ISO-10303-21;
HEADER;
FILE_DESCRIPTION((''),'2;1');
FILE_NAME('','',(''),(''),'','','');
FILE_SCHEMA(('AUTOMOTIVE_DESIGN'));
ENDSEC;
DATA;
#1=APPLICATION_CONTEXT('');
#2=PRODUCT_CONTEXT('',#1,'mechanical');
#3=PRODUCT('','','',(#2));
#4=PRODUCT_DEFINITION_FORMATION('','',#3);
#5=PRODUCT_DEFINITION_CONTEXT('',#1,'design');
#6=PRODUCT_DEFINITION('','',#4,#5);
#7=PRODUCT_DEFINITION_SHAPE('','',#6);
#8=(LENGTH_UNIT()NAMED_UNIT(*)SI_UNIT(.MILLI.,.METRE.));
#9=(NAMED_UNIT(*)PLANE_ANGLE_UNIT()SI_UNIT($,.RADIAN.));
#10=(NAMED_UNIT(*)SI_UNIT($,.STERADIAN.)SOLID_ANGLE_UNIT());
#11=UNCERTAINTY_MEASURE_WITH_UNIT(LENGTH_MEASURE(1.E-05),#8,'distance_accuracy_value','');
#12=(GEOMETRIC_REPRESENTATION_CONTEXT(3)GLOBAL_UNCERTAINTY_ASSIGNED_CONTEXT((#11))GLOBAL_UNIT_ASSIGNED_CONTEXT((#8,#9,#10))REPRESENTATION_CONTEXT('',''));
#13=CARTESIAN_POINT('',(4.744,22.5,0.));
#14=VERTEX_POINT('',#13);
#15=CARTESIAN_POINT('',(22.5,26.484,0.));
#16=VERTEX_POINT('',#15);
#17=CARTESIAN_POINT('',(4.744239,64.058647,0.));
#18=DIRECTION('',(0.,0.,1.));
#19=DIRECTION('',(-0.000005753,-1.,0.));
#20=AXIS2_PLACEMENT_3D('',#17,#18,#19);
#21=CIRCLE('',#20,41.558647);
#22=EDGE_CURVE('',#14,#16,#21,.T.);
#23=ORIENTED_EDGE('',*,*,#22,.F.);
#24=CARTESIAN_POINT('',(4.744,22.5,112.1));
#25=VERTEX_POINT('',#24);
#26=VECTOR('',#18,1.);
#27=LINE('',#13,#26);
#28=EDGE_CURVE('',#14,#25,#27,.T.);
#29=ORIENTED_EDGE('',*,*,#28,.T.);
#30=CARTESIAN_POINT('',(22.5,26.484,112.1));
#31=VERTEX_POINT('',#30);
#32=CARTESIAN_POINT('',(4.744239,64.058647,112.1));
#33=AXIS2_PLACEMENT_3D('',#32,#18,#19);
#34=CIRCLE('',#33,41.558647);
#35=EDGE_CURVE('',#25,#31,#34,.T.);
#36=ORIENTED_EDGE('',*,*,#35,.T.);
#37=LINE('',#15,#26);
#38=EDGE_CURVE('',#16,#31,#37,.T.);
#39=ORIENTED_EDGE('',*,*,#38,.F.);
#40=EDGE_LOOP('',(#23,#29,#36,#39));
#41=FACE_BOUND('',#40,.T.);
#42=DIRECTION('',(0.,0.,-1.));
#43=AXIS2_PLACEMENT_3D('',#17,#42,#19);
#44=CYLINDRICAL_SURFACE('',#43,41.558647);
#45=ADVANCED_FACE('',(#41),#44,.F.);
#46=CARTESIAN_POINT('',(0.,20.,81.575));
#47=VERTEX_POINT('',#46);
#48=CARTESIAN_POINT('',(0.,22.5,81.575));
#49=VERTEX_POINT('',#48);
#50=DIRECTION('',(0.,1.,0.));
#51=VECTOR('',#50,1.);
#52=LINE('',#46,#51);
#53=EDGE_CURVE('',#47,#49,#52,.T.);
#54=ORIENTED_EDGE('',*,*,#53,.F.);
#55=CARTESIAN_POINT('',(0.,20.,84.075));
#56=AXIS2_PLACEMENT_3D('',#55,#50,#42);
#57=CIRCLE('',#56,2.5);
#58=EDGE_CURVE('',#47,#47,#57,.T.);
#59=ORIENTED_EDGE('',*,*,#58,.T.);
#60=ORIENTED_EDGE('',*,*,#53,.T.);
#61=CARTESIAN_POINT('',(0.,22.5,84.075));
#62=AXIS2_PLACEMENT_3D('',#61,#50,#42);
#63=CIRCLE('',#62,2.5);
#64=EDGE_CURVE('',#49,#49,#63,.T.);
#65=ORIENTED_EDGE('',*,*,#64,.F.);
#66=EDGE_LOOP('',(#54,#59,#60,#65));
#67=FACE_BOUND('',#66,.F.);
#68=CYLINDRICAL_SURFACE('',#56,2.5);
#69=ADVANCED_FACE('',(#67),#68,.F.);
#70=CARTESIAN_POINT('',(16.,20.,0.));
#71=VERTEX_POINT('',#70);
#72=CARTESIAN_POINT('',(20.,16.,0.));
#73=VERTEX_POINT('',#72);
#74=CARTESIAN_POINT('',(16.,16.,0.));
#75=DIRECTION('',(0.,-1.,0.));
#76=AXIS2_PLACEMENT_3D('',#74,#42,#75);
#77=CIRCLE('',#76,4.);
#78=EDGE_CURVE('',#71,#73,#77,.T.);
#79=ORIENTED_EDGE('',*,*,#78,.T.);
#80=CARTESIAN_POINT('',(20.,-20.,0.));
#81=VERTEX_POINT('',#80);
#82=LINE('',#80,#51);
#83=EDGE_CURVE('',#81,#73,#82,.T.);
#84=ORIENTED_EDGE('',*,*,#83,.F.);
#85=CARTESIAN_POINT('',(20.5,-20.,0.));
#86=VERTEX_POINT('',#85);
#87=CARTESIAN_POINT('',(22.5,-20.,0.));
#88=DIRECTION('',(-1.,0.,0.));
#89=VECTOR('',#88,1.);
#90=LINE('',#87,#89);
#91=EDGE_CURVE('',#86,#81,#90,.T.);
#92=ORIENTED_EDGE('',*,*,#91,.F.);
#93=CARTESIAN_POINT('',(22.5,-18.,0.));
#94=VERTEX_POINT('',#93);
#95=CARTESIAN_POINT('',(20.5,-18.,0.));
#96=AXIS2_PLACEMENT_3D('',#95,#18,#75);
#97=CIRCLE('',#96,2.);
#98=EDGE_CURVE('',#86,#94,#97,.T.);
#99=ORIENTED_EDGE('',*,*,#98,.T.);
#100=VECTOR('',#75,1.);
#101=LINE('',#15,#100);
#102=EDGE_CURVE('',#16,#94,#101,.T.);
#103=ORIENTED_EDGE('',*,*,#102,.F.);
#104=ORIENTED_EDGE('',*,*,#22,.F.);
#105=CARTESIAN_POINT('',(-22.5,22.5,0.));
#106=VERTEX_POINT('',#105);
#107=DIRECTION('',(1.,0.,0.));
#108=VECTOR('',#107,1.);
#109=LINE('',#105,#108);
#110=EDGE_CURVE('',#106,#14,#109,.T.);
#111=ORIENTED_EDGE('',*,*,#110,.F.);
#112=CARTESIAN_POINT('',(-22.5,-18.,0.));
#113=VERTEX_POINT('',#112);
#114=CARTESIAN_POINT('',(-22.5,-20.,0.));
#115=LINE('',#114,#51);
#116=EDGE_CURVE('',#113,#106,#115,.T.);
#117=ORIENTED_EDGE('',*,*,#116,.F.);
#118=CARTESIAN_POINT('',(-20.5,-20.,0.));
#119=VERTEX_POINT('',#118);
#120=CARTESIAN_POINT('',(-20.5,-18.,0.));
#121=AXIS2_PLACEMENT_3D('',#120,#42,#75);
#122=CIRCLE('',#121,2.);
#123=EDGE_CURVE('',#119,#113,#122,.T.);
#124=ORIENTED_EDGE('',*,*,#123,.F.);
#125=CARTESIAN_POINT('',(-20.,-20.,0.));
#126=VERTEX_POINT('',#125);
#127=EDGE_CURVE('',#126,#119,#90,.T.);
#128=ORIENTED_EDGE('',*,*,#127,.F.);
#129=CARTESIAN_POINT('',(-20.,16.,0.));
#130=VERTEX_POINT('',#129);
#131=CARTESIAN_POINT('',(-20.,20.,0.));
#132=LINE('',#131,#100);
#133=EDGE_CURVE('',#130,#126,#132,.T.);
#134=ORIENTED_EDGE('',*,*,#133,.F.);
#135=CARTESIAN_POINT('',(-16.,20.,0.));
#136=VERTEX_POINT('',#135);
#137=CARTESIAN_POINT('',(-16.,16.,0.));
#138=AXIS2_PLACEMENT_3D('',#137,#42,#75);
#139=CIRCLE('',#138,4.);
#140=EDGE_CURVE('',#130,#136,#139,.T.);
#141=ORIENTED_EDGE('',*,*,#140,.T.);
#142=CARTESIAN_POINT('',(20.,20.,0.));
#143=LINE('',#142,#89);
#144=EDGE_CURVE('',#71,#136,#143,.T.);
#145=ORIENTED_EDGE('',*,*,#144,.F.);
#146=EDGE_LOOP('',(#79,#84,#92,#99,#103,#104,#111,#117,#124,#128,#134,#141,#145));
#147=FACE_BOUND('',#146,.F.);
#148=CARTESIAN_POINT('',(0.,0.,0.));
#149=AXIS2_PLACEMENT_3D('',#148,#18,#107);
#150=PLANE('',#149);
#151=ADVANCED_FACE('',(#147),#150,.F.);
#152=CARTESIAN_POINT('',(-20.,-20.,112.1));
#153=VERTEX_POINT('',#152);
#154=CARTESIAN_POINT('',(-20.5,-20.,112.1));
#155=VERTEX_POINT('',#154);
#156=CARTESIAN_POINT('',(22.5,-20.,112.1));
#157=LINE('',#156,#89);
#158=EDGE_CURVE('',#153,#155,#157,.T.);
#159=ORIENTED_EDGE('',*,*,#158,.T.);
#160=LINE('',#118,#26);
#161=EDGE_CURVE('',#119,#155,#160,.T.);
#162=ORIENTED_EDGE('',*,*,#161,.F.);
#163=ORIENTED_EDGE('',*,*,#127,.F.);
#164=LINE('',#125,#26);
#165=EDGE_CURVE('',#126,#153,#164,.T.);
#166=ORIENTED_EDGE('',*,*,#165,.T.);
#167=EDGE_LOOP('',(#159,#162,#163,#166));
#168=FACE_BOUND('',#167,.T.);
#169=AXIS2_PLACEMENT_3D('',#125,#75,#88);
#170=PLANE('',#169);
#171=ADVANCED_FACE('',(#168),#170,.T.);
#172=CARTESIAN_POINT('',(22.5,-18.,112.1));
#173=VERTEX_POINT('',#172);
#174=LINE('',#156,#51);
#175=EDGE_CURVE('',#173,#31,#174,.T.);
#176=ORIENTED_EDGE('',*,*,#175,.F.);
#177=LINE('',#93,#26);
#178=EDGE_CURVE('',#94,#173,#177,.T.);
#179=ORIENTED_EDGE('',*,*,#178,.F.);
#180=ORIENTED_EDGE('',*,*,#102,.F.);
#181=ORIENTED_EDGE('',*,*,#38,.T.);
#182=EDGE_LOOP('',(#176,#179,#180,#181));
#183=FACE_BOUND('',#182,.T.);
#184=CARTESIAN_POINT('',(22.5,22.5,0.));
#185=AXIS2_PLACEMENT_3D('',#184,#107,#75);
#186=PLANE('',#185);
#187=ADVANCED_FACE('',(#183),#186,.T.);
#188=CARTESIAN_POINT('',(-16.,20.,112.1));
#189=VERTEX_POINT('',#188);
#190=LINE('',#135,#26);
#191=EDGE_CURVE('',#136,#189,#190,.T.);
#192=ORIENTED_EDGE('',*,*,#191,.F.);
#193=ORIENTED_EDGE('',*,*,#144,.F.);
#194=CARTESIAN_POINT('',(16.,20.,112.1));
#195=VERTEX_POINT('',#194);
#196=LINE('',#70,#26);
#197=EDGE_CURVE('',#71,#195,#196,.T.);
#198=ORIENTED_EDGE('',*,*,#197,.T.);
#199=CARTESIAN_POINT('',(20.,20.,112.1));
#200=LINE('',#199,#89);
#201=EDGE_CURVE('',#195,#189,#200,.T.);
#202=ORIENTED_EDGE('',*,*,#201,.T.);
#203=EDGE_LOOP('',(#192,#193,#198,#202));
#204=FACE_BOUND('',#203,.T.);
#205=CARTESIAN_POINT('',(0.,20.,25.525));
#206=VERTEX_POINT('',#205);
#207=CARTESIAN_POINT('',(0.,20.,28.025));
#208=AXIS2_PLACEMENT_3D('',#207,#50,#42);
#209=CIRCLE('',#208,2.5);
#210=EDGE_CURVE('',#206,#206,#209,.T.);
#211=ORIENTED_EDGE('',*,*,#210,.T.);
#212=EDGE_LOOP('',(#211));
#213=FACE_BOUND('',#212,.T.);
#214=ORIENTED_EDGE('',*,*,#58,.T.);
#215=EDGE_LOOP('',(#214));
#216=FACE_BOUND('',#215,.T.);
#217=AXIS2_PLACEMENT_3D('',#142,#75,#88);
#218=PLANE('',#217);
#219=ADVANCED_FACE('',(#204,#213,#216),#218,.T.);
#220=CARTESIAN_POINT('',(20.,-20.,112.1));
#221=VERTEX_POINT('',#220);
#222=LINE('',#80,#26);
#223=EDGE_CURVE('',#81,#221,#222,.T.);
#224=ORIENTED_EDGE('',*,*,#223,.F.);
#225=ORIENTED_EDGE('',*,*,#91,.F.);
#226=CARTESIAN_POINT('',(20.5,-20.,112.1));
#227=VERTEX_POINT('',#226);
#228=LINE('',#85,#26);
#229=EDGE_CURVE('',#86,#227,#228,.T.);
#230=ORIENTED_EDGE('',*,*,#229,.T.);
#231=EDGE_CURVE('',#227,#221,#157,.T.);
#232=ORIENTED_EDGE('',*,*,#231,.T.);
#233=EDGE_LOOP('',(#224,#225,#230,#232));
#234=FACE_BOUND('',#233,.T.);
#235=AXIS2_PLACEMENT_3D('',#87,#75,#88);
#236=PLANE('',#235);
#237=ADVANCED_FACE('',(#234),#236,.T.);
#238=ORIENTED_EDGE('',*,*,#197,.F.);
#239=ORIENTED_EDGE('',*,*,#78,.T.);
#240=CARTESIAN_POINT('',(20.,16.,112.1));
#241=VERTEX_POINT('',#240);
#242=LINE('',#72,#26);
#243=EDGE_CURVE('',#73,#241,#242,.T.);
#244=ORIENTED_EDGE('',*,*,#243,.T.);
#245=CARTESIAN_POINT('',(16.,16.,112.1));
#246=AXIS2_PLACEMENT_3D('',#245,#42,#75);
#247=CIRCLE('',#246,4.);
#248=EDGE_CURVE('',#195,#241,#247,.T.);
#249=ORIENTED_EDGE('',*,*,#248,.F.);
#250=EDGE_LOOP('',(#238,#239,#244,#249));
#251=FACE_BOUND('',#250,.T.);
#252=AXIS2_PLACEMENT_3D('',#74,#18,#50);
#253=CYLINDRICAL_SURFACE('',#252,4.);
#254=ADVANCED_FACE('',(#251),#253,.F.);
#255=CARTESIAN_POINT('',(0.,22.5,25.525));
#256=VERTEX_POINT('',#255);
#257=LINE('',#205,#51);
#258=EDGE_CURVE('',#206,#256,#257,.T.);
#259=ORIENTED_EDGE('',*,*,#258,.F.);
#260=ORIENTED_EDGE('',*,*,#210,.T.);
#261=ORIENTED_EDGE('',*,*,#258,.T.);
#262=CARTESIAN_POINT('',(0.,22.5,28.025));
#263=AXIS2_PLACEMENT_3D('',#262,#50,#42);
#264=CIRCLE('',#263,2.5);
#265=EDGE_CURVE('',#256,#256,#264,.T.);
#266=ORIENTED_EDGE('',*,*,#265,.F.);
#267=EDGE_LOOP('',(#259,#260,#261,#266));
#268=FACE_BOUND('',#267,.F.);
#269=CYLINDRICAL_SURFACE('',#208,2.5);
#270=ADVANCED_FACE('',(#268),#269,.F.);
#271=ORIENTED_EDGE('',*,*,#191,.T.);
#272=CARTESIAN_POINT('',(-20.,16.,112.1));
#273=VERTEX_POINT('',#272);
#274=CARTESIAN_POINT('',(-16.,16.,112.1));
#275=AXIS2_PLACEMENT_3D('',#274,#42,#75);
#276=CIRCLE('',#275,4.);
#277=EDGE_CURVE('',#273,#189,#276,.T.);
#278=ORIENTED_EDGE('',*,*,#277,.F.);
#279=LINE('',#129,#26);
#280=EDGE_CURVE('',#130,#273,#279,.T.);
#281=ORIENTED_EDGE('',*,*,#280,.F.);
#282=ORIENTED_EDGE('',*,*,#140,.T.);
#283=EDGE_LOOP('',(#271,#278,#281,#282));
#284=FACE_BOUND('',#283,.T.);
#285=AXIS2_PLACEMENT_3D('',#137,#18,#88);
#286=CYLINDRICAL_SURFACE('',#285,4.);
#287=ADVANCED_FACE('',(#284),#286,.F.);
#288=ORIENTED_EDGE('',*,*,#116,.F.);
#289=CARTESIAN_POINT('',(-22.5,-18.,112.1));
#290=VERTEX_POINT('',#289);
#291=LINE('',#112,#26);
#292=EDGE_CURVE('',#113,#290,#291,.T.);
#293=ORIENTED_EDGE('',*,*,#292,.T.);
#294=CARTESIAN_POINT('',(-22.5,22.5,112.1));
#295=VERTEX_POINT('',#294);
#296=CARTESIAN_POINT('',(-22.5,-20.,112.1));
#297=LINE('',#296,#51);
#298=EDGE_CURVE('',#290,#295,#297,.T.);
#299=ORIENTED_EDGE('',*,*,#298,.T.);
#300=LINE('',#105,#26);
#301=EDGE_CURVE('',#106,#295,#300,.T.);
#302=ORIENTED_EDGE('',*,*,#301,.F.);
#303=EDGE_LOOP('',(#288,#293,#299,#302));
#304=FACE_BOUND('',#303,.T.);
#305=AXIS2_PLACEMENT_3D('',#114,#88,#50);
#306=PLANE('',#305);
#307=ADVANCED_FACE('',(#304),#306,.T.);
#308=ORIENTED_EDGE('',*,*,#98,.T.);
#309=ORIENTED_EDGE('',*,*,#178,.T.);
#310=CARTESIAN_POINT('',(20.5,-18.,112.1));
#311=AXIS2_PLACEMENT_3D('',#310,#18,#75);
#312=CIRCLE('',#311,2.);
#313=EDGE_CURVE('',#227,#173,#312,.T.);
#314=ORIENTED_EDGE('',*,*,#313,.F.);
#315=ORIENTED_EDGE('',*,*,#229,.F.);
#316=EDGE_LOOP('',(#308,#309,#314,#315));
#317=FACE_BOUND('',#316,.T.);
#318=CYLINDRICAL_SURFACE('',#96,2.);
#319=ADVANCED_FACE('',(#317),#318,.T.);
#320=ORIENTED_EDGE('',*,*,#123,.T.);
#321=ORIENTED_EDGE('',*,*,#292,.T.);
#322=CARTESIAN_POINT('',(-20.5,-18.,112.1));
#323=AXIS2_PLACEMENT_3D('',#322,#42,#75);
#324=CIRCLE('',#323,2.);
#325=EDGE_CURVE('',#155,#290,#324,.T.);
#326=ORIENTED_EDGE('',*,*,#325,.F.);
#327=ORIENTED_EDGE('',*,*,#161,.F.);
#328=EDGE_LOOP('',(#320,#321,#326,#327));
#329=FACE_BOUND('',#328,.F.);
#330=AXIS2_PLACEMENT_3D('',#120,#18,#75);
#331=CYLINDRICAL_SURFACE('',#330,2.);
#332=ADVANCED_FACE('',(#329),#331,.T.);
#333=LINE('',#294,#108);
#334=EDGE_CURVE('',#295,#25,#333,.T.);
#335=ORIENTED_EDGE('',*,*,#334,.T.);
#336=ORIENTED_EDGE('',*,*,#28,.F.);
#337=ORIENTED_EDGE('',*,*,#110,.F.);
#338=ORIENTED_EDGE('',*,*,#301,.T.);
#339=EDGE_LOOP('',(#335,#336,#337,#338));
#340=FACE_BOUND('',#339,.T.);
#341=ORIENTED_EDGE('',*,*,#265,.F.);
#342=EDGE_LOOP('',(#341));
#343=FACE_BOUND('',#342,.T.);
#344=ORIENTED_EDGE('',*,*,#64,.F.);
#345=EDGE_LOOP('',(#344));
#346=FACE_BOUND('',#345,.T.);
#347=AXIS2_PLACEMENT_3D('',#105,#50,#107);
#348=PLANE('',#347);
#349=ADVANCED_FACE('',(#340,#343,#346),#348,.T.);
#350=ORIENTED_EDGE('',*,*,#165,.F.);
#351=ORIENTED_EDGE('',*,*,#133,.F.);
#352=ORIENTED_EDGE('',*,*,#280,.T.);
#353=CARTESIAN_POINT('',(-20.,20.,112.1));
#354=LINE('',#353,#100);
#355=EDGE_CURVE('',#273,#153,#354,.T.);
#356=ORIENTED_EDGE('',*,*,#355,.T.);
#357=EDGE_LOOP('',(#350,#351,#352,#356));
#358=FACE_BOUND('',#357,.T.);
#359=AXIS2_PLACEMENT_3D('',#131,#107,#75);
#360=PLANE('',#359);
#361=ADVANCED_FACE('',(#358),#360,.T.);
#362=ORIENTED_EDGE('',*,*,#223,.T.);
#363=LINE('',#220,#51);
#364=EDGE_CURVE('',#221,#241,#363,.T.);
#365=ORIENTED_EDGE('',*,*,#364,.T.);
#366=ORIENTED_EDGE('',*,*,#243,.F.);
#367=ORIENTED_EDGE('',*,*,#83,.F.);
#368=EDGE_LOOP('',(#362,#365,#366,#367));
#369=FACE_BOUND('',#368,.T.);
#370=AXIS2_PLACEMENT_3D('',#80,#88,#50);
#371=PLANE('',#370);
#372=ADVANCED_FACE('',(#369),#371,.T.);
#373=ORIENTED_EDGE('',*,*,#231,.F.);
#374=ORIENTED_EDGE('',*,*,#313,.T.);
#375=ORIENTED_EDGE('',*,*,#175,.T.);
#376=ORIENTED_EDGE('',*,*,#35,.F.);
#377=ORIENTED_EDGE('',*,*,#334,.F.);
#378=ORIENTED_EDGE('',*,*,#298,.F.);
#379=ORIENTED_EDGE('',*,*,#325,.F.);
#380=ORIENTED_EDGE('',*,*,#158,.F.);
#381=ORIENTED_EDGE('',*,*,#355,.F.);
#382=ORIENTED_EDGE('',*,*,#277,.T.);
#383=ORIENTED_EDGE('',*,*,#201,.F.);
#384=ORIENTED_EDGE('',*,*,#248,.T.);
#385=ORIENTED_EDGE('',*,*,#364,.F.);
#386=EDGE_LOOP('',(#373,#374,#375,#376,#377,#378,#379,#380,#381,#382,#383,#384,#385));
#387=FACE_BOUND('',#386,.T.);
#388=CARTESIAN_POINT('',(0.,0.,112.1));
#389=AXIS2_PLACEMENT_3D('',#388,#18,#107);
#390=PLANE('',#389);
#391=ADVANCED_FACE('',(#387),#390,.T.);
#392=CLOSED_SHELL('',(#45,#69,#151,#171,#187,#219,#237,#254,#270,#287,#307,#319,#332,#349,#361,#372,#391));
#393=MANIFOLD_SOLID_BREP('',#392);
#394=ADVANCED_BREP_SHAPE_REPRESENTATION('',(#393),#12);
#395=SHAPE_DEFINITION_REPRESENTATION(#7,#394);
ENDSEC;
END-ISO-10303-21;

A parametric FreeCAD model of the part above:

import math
import FreeCAD as App
import Part
import Sketcher
from FreeCAD import Vector
Q = App.Units.Quantity


def edges_at(feature, points):
    """Names of the edges that pass closest to the given points."""
    edges = feature.Shape.Edges
    near = lambda p: min(range(len(edges)), key=lambda i: edges[i].distToShape(Part.Vertex(*p))[0])
    return sorted({f"Edge{near(p) + 1}" for p in points})

doc = App.newDocument("Part")
body = doc.addObject("PartDesign::Body", "Body")

sketch1 = body.newObject("Sketcher::SketchObject", "Sketch")
sketch1.AttachmentSupport = (doc.getObject("XY_Plane"), [""])
sketch1.MapMode = "FlatFace"
sketch1.addGeometry(Part.LineSegment(Vector(-22.5, -20, 0), Vector(-20, -20, 0)), False)
sketch1.addGeometry(Part.LineSegment(Vector(-20, -20, 0), Vector(-20, 20, 0)), False)
sketch1.addGeometry(Part.LineSegment(Vector(-20, 20, 0), Vector(20, 20, 0)), False)
sketch1.addGeometry(Part.LineSegment(Vector(20, 20, 0), Vector(20, -20, 0)), False)
sketch1.addGeometry(Part.LineSegment(Vector(20, -20, 0), Vector(22.5, -20, 0)), False)
sketch1.addGeometry(Part.LineSegment(Vector(22.5, -20, 0), Vector(22.5, 26.5, 0)), False)
sketch1.addGeometry(Part.ArcOfCircle(Part.Circle(Vector(4.7, 64.1, 0), Vector(0, 0, 1), 41.6), math.radians(-90), math.radians(-65)), False)
sketch1.addGeometry(Part.LineSegment(Vector(4.7, 22.5, 0), Vector(-22.5, 22.5, 0)), False)
sketch1.addGeometry(Part.LineSegment(Vector(-22.5, 22.5, 0), Vector(-22.5, -20, 0)), False)
sketch1.addConstraint(Sketcher.Constraint("Coincident", 0, 2, 1, 1))
sketch1.addConstraint(Sketcher.Constraint("Coincident", 1, 2, 2, 1))
sketch1.addConstraint(Sketcher.Constraint("Coincident", 2, 2, 3, 1))
sketch1.addConstraint(Sketcher.Constraint("Coincident", 3, 2, 4, 1))
sketch1.addConstraint(Sketcher.Constraint("Coincident", 4, 2, 5, 1))
sketch1.addConstraint(Sketcher.Constraint("Coincident", 5, 2, 6, 2))
sketch1.addConstraint(Sketcher.Constraint("Tangent", 6, 1, 7, 1))
sketch1.addConstraint(Sketcher.Constraint("Coincident", 7, 2, 8, 1))
sketch1.addConstraint(Sketcher.Constraint("Coincident", 8, 2, 0, 1))
sketch1.addConstraint(Sketcher.Constraint("Horizontal", 0))
sketch1.addConstraint(Sketcher.Constraint("Vertical", 1))
sketch1.addConstraint(Sketcher.Constraint("Horizontal", 2))
sketch1.addConstraint(Sketcher.Constraint("Vertical", 3))
sketch1.addConstraint(Sketcher.Constraint("Horizontal", 4))
sketch1.addConstraint(Sketcher.Constraint("Vertical", 5))
sketch1.addConstraint(Sketcher.Constraint("Horizontal", 7))
sketch1.addConstraint(Sketcher.Constraint("Vertical", 8))
sketch1.addConstraint(Sketcher.Constraint("Symmetric", 0, 2, 2, 2, -1, 1))
sketch1.addConstraint(Sketcher.Constraint("Symmetric", 4, 2, 8, 2, -2))
sketch1.addConstraint(Sketcher.Constraint("Equal", 2, 1))
sketch1.addConstraint(Sketcher.Constraint("DistanceX", 2, 1, 2, 2, Q("40 mm")))
sketch1.addConstraint(Sketcher.Constraint("DistanceX", 0, 1, 0, 2, Q("2.5 mm")))
sketch1.addConstraint(Sketcher.Constraint("DistanceY", 8, 2, 8, 1, Q("42.5 mm")))
sketch1.addConstraint(Sketcher.Constraint("Radius", 6, Q("41.559 mm")))
sketch1.addConstraint(Sketcher.Constraint("DistanceX", 7, 2, 7, 1, Q("27.244 mm")))
pad1 = body.newObject("PartDesign::Pad", "Pad")
pad1.Profile = sketch1
pad1.Length = 112.1

sketch2 = body.newObject("Sketcher::SketchObject", "Sketch001")
sketch2.AttachmentSupport = (doc.getObject("XZ_Plane"), [""])
sketch2.MapMode = "FlatFace"
sketch2.AttachmentOffset = App.Placement(Vector(0, 0, -20), App.Rotation())
sketch2.addGeometry(Part.Circle(Vector(0, 28, 0), Vector(0, 0, 1), 2.5), False)
sketch2.addGeometry(Part.Circle(Vector(0, 84.1, 0), Vector(0, 0, 1), 2.5), False)
sketch2.addConstraint(Sketcher.Constraint("Equal", 0, 1))
sketch2.addConstraint(Sketcher.Constraint("PointOnObject", 0, 3, -2))
sketch2.addConstraint(Sketcher.Constraint("PointOnObject", 1, 3, -2))
sketch2.addConstraint(Sketcher.Constraint("Diameter", 0, Q("5 mm")))
sketch2.addConstraint(Sketcher.Constraint("DistanceY", 0, 3, 1, 3, Q("56.05 mm")))
sketch2.addConstraint(Sketcher.Constraint("DistanceY", -1, 1, 0, 3, Q("28.025 mm")))
doc.recompute()
hole = body.newObject("PartDesign::Hole", "Hole")
hole.Profile = sketch2
hole.ThreadType = "None"
hole.Diameter = 5
hole.DepthType = "Dimension"
hole.Depth = 8
hole.DrillPoint = "Angled"
hole.DrillPointAngle = 118
doc.recompute()

fillet = body.newObject("PartDesign::Fillet", "Fillet")
fillet.Base = (hole, edges_at(hole, [(20, 20, 56.05), (-20, 20, 56.05)]))
fillet.Radius = 4
doc.recompute()

fillet2 = body.newObject("PartDesign::Fillet", "Fillet001")
fillet2.Base = (fillet, edges_at(fillet, [(-22.5, -20, 56.05), (22.5, -20, 56.05)]))
fillet2.Radius = 2

doc.recompute()
